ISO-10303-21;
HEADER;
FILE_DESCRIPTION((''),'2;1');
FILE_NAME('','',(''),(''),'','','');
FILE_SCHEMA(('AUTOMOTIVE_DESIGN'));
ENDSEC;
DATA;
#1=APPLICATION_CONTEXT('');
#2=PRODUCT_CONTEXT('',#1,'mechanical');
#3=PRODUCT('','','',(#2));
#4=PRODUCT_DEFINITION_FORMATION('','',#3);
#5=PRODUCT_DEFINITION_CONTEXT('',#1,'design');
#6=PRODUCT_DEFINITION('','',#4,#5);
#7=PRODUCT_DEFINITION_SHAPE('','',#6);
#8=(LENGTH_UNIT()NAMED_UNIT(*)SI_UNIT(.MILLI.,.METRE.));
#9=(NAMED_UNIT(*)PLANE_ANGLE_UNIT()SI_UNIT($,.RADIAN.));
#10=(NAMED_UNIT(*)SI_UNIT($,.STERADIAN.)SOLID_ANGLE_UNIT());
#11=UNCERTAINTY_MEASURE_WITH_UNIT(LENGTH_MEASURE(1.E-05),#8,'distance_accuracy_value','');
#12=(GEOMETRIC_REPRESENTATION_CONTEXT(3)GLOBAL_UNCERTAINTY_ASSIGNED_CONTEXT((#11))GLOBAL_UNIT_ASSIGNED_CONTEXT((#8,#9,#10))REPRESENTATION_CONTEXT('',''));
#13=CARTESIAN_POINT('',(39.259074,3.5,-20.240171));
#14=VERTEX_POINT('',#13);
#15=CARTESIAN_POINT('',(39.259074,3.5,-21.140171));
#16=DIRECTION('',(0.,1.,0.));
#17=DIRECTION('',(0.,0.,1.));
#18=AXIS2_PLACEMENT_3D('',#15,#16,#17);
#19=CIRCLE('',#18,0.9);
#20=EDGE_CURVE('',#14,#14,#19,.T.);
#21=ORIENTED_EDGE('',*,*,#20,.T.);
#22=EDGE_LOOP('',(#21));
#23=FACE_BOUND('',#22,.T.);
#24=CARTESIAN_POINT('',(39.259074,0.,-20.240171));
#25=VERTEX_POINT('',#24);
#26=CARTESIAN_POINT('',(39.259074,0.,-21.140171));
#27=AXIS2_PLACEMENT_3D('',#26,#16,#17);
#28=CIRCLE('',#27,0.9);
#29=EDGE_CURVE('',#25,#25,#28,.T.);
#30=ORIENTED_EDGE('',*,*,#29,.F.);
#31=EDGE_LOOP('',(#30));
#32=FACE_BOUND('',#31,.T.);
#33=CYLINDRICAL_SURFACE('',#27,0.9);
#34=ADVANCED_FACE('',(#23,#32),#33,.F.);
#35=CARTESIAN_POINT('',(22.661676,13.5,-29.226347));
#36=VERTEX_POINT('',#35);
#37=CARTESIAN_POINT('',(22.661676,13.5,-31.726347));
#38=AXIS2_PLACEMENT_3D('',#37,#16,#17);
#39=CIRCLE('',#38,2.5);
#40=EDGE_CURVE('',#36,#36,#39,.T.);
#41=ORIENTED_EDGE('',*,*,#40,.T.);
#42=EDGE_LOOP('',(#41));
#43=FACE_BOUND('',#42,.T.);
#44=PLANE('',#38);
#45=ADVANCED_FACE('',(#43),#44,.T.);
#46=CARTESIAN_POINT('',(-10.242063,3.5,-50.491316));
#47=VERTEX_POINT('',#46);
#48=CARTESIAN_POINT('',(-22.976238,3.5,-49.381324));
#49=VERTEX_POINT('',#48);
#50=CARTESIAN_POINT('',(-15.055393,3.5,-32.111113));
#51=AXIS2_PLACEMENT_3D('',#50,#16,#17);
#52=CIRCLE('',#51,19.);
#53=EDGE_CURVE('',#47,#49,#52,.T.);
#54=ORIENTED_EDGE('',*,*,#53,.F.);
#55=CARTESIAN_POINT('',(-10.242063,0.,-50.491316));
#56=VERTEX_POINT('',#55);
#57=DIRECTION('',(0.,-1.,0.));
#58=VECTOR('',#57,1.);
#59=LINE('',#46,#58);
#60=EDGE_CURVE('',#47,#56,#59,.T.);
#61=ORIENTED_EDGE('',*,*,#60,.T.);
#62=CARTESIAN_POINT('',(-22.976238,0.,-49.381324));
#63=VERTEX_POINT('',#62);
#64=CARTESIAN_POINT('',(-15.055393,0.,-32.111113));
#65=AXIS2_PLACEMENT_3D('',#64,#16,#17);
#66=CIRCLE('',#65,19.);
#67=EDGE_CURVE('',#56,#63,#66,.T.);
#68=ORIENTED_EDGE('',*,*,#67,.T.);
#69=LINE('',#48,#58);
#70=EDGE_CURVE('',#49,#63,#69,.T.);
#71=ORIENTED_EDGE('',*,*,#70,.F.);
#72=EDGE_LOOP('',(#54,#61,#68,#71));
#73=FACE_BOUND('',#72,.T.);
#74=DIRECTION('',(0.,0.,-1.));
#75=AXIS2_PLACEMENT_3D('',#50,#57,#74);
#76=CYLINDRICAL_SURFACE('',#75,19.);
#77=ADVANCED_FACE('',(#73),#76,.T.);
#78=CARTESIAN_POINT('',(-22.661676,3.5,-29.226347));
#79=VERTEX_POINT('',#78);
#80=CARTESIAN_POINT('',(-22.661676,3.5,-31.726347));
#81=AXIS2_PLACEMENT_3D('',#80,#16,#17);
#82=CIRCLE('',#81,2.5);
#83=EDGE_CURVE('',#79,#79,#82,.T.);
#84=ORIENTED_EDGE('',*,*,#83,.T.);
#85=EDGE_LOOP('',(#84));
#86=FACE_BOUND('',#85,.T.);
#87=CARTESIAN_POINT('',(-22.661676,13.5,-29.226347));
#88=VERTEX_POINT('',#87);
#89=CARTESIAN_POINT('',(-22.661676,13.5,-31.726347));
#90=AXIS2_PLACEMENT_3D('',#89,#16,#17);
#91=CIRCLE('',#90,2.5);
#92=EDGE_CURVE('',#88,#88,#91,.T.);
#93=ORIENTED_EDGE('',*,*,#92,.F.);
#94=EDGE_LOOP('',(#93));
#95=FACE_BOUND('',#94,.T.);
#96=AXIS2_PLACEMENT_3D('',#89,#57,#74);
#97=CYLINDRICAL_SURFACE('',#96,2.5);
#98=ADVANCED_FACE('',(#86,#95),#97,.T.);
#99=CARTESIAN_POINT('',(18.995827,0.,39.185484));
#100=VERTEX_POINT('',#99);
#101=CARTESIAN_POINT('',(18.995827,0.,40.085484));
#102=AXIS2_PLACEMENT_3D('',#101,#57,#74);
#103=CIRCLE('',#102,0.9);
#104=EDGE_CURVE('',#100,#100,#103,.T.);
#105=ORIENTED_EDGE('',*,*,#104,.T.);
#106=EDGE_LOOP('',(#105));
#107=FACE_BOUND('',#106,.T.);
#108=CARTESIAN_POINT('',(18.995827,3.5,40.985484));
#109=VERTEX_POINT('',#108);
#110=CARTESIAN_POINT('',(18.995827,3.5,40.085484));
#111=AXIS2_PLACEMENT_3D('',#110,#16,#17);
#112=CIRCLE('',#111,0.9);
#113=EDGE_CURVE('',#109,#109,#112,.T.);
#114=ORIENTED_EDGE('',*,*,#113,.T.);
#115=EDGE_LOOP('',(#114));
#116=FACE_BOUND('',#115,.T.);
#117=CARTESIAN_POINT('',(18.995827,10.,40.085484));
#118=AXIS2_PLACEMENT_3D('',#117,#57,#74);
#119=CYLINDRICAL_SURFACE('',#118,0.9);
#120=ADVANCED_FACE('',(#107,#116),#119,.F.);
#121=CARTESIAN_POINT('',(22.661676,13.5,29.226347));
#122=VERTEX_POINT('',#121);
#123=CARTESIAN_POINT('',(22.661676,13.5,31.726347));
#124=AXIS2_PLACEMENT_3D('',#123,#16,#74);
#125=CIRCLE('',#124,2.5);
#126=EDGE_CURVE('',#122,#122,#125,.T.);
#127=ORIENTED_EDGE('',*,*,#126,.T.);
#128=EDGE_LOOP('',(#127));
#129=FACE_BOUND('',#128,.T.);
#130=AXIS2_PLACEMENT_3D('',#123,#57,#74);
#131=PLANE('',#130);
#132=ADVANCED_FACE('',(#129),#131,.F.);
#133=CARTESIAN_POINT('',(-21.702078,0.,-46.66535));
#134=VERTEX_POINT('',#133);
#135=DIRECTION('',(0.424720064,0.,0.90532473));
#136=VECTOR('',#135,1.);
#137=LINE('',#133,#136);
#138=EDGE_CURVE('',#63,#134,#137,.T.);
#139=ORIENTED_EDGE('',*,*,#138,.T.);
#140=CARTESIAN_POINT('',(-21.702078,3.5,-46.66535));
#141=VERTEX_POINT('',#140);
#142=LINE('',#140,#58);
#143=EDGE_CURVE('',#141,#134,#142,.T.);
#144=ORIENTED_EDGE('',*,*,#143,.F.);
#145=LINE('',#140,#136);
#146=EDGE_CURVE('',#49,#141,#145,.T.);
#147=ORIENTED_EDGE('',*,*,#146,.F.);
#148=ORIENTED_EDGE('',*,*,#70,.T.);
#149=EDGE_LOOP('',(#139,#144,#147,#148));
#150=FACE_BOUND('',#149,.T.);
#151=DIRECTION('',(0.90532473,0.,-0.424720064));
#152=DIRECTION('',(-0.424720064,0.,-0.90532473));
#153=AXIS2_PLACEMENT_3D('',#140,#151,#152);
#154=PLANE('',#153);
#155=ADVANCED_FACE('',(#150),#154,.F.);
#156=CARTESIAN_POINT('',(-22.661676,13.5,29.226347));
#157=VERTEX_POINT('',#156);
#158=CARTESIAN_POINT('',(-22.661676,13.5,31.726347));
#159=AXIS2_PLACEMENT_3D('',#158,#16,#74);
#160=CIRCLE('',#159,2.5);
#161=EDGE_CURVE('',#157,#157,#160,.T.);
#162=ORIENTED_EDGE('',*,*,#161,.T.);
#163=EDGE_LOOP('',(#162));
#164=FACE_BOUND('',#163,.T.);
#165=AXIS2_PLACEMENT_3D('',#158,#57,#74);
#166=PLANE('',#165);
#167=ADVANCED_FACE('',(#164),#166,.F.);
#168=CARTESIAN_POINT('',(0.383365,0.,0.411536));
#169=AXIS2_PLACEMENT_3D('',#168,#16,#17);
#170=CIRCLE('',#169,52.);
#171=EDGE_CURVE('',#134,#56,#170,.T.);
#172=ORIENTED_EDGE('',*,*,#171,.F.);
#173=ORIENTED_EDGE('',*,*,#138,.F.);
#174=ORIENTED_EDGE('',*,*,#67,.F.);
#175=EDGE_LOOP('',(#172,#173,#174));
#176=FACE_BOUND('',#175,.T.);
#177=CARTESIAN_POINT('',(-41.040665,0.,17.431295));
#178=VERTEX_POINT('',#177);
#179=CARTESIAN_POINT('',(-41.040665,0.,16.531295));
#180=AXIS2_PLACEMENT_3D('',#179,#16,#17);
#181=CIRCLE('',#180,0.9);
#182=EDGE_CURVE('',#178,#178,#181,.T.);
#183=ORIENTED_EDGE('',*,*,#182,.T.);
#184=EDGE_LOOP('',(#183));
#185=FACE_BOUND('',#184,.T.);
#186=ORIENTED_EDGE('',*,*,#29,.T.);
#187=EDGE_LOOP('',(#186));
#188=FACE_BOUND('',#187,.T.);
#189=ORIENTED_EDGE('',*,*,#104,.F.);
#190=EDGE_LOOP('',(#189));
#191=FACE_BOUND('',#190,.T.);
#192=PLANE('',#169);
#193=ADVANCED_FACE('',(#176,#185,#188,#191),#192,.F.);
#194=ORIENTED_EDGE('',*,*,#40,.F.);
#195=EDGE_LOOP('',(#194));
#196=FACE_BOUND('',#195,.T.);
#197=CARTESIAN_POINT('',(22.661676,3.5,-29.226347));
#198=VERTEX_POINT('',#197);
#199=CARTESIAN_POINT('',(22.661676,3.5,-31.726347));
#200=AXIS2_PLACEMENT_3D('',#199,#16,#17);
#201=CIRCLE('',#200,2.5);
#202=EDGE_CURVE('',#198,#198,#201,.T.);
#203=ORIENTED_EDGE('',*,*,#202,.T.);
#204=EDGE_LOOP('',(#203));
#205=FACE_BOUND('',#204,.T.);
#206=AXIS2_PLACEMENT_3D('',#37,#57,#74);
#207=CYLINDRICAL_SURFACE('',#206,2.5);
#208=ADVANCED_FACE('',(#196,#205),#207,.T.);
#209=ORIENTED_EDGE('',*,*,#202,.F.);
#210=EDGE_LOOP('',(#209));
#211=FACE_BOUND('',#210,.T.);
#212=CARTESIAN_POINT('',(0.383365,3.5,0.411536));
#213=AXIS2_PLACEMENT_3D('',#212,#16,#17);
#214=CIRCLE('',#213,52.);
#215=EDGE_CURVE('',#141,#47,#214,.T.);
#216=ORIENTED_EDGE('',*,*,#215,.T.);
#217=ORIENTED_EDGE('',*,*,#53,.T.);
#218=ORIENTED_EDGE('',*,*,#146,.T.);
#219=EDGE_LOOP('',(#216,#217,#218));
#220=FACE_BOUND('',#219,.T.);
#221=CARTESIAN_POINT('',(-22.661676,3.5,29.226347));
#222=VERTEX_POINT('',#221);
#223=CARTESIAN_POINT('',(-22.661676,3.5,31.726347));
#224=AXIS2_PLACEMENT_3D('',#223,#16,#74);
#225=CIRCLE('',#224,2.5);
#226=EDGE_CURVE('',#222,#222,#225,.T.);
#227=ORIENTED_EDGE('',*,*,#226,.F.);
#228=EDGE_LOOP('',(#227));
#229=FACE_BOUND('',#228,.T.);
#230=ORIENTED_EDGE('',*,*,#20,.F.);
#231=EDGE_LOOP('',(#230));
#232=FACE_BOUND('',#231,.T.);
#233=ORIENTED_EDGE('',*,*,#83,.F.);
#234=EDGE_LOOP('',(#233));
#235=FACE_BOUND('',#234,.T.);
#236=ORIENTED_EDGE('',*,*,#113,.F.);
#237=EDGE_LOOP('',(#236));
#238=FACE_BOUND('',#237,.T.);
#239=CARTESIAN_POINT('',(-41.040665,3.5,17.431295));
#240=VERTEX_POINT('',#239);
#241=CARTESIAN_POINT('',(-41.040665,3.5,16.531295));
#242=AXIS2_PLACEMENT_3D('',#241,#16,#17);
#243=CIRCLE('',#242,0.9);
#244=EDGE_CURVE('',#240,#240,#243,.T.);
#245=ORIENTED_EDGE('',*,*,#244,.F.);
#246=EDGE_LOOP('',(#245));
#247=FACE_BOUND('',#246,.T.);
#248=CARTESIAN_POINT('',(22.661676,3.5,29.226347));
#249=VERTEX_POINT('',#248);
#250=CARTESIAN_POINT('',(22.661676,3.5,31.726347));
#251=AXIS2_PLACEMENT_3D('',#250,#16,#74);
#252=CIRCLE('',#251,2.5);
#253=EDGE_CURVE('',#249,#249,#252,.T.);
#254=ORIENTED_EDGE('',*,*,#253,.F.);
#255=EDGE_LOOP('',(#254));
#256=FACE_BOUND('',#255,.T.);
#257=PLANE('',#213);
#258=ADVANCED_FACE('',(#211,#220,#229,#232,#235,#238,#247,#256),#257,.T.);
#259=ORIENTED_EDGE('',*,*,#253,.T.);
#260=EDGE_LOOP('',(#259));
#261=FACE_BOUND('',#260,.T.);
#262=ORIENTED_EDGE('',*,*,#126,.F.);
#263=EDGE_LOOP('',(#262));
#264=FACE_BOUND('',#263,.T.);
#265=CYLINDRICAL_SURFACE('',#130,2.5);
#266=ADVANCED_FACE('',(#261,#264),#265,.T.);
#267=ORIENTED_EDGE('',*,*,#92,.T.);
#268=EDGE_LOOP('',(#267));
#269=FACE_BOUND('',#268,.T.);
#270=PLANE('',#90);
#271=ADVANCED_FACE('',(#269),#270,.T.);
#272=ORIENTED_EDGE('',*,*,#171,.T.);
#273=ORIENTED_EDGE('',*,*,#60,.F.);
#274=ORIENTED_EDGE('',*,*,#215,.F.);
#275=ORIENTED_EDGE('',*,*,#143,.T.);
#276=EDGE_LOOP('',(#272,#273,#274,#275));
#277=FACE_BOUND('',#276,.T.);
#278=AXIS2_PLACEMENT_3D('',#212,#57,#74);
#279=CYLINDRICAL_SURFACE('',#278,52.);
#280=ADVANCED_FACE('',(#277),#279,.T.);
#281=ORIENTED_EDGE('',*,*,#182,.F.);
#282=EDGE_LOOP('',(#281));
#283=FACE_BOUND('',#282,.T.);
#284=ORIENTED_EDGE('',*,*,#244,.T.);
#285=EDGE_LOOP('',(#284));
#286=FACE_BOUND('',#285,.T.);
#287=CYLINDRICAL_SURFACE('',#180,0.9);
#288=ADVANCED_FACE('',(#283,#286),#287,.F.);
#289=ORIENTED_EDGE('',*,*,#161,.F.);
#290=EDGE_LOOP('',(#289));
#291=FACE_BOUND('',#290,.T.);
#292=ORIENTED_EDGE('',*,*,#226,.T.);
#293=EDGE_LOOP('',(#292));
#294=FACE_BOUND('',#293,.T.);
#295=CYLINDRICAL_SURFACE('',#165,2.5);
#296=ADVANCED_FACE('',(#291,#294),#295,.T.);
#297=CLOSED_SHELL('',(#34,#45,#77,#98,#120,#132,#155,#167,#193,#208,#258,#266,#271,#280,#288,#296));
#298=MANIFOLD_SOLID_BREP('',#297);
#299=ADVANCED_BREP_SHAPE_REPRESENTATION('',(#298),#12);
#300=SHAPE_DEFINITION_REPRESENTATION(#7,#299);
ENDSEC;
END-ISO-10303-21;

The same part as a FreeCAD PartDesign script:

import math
import FreeCAD as App
import Part
import Sketcher
Q = App.Units.Quantity

doc = App.newDocument("Part")
body = doc.addObject("PartDesign::Body", "Body")

sketch1 = body.newObject("Sketcher::SketchObject", "Sketch")
sketch1.AttachmentSupport = (doc.getObject("XZ_Plane"), [""])
sketch1.MapMode = "FlatFace"
sketch1.addGeometry(Part.LineSegment(App.Vector(-23, -49.4, 0), App.Vector(-21.7, -46.7, 0)), False)
sketch1.addGeometry(Part.ArcOfCircle(Part.Circle(App.Vector(0.4, 0.4, 0), App.Vector(0, 0, 1), 52), math.radians(-102), math.radians(245)), False)
sketch1.addGeometry(Part.ArcOfCircle(Part.Circle(App.Vector(-15.1, -32.1, 0), App.Vector(0, 0, 1), 19), math.radians(-115), math.radians(-75)), False)
sketch1.addConstraint(Sketcher.Constraint("Coincident", 0, 2, 1, 2))
sketch1.addConstraint(Sketcher.Constraint("Coincident", 1, 1, 2, 2))
sketch1.addConstraint(Sketcher.Constraint("Coincident", 2, 1, 0, 1))
sketch1.addConstraint(Sketcher.Constraint("Radius", 1, Q("52 mm")))
sketch1.addConstraint(Sketcher.Constraint("Radius", 2, Q("19 mm")))
sketch1.addConstraint(Sketcher.Constraint("Distance", 0, Q("3 mm")))
sketch1.addConstraint(Sketcher.Constraint("DistanceX", 0, 2, -1, 1, Q("21.702078 mm")))
sketch1.addConstraint(Sketcher.Constraint("DistanceY", 0, 2, -1, 1, Q("46.66535 mm")))
sketch1.addConstraint(Sketcher.Constraint("DistanceX", 2, 1, -1, 1, Q("22.976238 mm")))
sketch1.addConstraint(Sketcher.Constraint("DistanceY", 2, 3, 1, 3, Q("32.522649 mm")))
sketch1.addConstraint(Sketcher.Constraint("DistanceY", 1, 1, 2, 1, Q("1.109991 mm")))
pad1 = body.newObject("PartDesign::Pad", "Pad")
pad1.Profile = sketch1
pad1.Length = 3.5
pad1.Reversed = True

sketch2 = body.newObject("Sketcher::SketchObject", "Sketch001")
sketch2.AttachmentSupport = (doc.getObject("XZ_Plane"), [""])
sketch2.MapMode = "FlatFace"
sketch2.AttachmentOffset = App.Placement(App.Vector(0, 0, -3.5), App.Rotation())
sketch2.addGeometry(Part.Circle(App.Vector(-41, 16.5, 0), App.Vector(0, 0, 1), 0.9), False)
sketch2.addGeometry(Part.Circle(App.Vector(39.3, -21.1, 0), App.Vector(0, 0, 1), 0.9), False)
sketch2.addConstraint(Sketcher.Constraint("Equal", 0, 1))
sketch2.addConstraint(Sketcher.Constraint("Diameter", 0, Q("1.8 mm")))
sketch2.addConstraint(Sketcher.Constraint("DistanceY", 1, 3, -1, 1, Q("21.140171 mm")))
sketch2.addConstraint(Sketcher.Constraint("DistanceX", 0, 3, 1, 3, Q("80.299739 mm")))
sketch2.addConstraint(Sketcher.Constraint("DistanceX", 0, 3, -1, 1, Q("41.040665 mm")))
sketch2.addConstraint(Sketcher.Constraint("DistanceY", -1, 1, 0, 3, Q("16.531295 mm")))
pocket1 = body.newObject("PartDesign::Pocket", "Pocket")
pocket1.Profile = sketch2
pocket1.Type = "ThroughAll"
pocket1.Reversed = True

sketch3 = body.newObject("Sketcher::SketchObject", "Sketch002")
sketch3.AttachmentSupport = (doc.getObject("XZ_Plane"), [""])
sketch3.MapMode = "FlatFace"
sketch3.AttachmentOffset = App.Placement(App.Vector(0, 0, -3.5), App.Rotation())
sketch3.addGeometry(Part.Circle(App.Vector(-22.7, -31.7, 0), App.Vector(0, 0, 1), 2.5), False)
sketch3.addGeometry(Part.Circle(App.Vector(22.7, -31.7, 0), App.Vector(0, 0, 1), 2.5), False)
sketch3.addGeometry(Part.Circle(App.Vector(22.7, 31.7, 0), App.Vector(0, 0, 1), 2.5), False)
sketch3.addGeometry(Part.Circle(App.Vector(-22.7, 31.7, 0), App.Vector(0, 0, 1), 2.5), False)
sketch3.addConstraint(Sketcher.Constraint("Equal", 0, 1))
sketch3.addConstraint(Sketcher.Constraint("Equal", 1, 2))
sketch3.addConstraint(Sketcher.Constraint("Equal", 2, 3))
sketch3.addConstraint(Sketcher.Constraint("Symmetric", 0, 3, 2, 3, -1, 1))
sketch3.addConstraint(Sketcher.Constraint("Symmetric", 1, 3, 3, 3, -1, 1))
sketch3.addConstraint(Sketcher.Constraint("Symmetric", 0, 3, 1, 3, -2))
sketch3.addConstraint(Sketcher.Constraint("Diameter", 0, Q("5 mm")))
sketch3.addConstraint(Sketcher.Constraint("DistanceX", 0, 3, -1, 1, Q("22.661676 mm")))
sketch3.addConstraint(Sketcher.Constraint("DistanceY", 0, 3, -1, 1, Q("31.726347 mm")))
pad2 = body.newObject("PartDesign::Pad", "Pad001")
pad2.Profile = sketch3
pad2.Length = 10
pad2.Reversed = True

sketch4 = body.newObject("Sketcher::SketchObject", "Sketch003")
sketch4.AttachmentSupport = (doc.getObject("XZ_Plane"), [""])
sketch4.MapMode = "FlatFace"
sketch4.addGeometry(Part.Circle(App.Vector(19, 40.1, 0), App.Vector(0, 0, 1), 0.9), False)
sketch4.addConstraint(Sketcher.Constraint("Diameter", 0, Q("1.8 mm")))
sketch4.addConstraint(Sketcher.Constraint("DistanceX", -1, 1, 0, 3, Q("18.995827 mm")))
sketch4.addConstraint(Sketcher.Constraint("DistanceY", -1, 1, 0, 3, Q("40.085484 mm")))
pocket2 = body.newObject("PartDesign::Pocket", "Pocket001")
pocket2.Profile = sketch4
pocket2.Length = 10

doc.recompute()
